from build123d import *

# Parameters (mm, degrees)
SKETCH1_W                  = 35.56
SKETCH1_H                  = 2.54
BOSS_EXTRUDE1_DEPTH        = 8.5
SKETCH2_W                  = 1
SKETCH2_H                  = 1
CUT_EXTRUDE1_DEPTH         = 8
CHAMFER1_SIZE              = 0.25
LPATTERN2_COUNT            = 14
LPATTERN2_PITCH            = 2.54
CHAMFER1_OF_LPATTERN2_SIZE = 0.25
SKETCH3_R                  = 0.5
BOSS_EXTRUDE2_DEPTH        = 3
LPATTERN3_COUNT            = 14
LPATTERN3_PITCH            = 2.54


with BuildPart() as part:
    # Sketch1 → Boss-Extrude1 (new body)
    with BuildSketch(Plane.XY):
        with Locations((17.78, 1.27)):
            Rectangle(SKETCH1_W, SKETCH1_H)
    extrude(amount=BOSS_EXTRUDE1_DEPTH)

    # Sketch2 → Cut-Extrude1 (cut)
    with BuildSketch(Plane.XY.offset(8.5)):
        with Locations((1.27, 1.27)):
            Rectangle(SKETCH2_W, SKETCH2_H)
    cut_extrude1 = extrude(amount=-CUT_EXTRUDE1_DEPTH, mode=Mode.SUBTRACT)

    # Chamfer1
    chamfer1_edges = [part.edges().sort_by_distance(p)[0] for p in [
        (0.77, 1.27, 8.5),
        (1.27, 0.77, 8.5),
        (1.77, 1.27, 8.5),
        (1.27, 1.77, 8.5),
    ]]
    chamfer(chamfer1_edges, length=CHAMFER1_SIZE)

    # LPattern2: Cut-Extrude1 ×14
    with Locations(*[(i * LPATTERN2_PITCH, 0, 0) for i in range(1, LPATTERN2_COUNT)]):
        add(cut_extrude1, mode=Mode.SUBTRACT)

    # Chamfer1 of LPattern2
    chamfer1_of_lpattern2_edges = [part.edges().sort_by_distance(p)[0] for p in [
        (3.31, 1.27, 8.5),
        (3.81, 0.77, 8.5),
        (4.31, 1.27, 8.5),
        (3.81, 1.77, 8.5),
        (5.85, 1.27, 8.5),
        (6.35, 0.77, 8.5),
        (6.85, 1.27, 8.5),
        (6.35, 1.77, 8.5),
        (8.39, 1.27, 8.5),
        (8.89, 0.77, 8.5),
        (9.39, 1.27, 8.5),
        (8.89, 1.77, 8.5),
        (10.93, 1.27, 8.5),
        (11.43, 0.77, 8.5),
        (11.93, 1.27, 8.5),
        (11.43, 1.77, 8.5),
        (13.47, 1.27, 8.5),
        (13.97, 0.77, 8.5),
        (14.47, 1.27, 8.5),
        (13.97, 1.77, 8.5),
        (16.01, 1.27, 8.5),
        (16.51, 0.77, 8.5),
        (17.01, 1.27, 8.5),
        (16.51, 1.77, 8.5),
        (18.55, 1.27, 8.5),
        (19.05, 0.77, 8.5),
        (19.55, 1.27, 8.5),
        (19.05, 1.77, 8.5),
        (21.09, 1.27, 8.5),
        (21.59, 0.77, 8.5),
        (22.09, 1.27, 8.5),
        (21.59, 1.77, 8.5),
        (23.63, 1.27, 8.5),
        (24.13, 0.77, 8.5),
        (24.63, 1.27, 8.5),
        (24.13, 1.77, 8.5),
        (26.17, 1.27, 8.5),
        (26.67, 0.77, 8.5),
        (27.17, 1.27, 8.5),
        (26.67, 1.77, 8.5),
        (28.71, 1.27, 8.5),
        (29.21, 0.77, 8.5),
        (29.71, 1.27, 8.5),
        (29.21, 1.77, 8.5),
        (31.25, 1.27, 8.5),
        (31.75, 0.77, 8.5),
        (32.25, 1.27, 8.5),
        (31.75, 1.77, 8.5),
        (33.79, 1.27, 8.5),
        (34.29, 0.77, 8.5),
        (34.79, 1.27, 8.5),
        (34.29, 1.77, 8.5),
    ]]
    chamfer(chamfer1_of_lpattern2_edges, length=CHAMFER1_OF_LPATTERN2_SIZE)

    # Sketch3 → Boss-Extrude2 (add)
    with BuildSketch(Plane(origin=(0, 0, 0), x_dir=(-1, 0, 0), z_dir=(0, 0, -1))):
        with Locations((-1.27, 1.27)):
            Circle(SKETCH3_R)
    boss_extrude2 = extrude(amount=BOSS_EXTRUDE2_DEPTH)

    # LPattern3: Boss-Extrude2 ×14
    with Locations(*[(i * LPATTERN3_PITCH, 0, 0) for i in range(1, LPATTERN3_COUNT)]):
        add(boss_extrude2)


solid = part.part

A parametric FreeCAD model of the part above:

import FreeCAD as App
import Part
import Sketcher


def edges_at(feature, points):
    """Names of the edges that pass closest to the given points."""
    edges = feature.Shape.Edges
    near = lambda p: min(range(len(edges)), key=lambda i: edges[i].distToShape(Part.Vertex(*p))[0])
    return sorted({f"Edge{near(p) + 1}" for p in points})

doc = App.newDocument("Part")
body = doc.addObject("PartDesign::Body", "Body")

# Sketch on XY plane
sketch1 = doc.addObject("Sketcher::SketchObject", "Sketch")
body.addObject(sketch1)
sketch1.AttachmentSupport = (doc.XY_Plane, [""])
sketch1.MapMode = "FlatFace"
sketch1.addGeometry([
    Part.LineSegment(App.Vector(0, 2.5, 0), App.Vector(0, 0, 0)),
    Part.LineSegment(App.Vector(0, 0, 0), App.Vector(35.6, 0, 0)),
    Part.LineSegment(App.Vector(35.6, 0, 0), App.Vector(35.6, 2.5, 0)),
    Part.LineSegment(App.Vector(35.6, 2.5, 0), App.Vector(0, 2.5, 0)),
], False)
sketch1.addConstraint([
    Sketcher.Constraint("Coincident", 0, 2, 1, 1),
    Sketcher.Constraint("Coincident", 1, 2, 2, 1),
    Sketcher.Constraint("Coincident", 2, 2, 3, 1),
    Sketcher.Constraint("Coincident", 3, 2, 0, 1),
    Sketcher.Constraint("Vertical", 0),
    Sketcher.Constraint("Horizontal", 1),
    Sketcher.Constraint("Vertical", 2),
    Sketcher.Constraint("Horizontal", 3),
    Sketcher.Constraint("Coincident", 0, 2, -1, 1),
    Sketcher.Constraint("DistanceX", 1, 1, 1, 2, 35.56),
    Sketcher.Constraint("DistanceY", 0, 2, 0, 1, 2.54),
])
pad1 = doc.addObject("PartDesign::Pad", "Pad")
body.addObject(pad1)
pad1.Profile = sketch1
pad1.Length = 8.5

# Sketch on XY plane
sketch2 = doc.addObject("Sketcher::SketchObject", "Sketch001")
body.addObject(sketch2)
sketch2.AttachmentSupport = (doc.XY_Plane, [""])
sketch2.MapMode = "FlatFace"
sketch2.AttachmentOffset = App.Placement(App.Vector(0, 0, 8.5), App.Rotation())
sketch2.addGeometry([
    Part.LineSegment(App.Vector(0.8, 1.8, 0), App.Vector(0.8, 0.8, 0)),
    Part.LineSegment(App.Vector(0.8, 0.8, 0), App.Vector(1.8, 0.8, 0)),
    Part.LineSegment(App.Vector(1.8, 0.8, 0), App.Vector(1.8, 1.8, 0)),
    Part.LineSegment(App.Vector(1.8, 1.8, 0), App.Vector(0.8, 1.8, 0)),
], False)
sketch2.addConstraint([
    Sketcher.Constraint("Coincident", 0, 2, 1, 1),
    Sketcher.Constraint("Coincident", 1, 2, 2, 1),
    Sketcher.Constraint("Coincident", 2, 2, 3, 1),
    Sketcher.Constraint("Coincident", 3, 2, 0, 1),
    Sketcher.Constraint("Vertical", 0),
    Sketcher.Constraint("Horizontal", 1),
    Sketcher.Constraint("Vertical", 2),
    Sketcher.Constraint("Horizontal", 3),
    Sketcher.Constraint("Equal", 3, 0),
    Sketcher.Constraint("DistanceX", 1, 1, 1, 2, 1.0),
    Sketcher.Constraint("DistanceX", -1, 1, 0, 2, 0.77),
    Sketcher.Constraint("DistanceY", -1, 1, 0, 2, 0.77),
])
pocket1 = doc.addObject("PartDesign::Pocket", "Pocket")
body.addObject(pocket1)
pocket1.Profile = sketch2
pocket1.Length = 8
doc.recompute()

chamfer = doc.addObject("PartDesign::Chamfer", "Chamfer")
body.addObject(chamfer)
chamfer.Base = (pocket1, edges_at(pocket1, [
    (0.77, 1.27, 8.5),
    (1.27, 0.77, 8.5),
    (1.77, 1.27, 8.5),
    (1.27, 1.77, 8.5),
]))
chamfer.Size = 0.25
doc.recompute()

linearpattern = doc.addObject("PartDesign::LinearPattern", "LinearPattern")
body.addObject(linearpattern)
linearpattern.Originals = [pocket1]
linearpattern.Direction = (doc.X_Axis, [""])
linearpattern.Mode = "offset"
linearpattern.Offset = 2.54
linearpattern.Occurrences = 14
body.Tip = linearpattern
doc.recompute()

chamfer2 = doc.addObject("PartDesign::Chamfer", "Chamfer001")
body.addObject(chamfer2)
chamfer2.Base = (linearpattern, edges_at(linearpattern, [
    (3.31, 1.27, 8.5),
    (3.81, 0.77, 8.5),
    (4.31, 1.27, 8.5),
    (3.81, 1.77, 8.5),
    (5.85, 1.27, 8.5),
    (6.35, 0.77, 8.5),
    (6.85, 1.27, 8.5),
    (6.35, 1.77, 8.5),
    (8.39, 1.27, 8.5),
    (8.89, 0.77, 8.5),
    (9.39, 1.27, 8.5),
    (8.89, 1.77, 8.5),
    (10.93, 1.27, 8.5),
    (11.43, 0.77, 8.5),
    (11.93, 1.27, 8.5),
    (11.43, 1.77, 8.5),
    (13.47, 1.27, 8.5),
    (13.97, 0.77, 8.5),
    (14.47, 1.27, 8.5),
    (13.97, 1.77, 8.5),
    (16.01, 1.27, 8.5),
    (16.51, 0.77, 8.5),
    (17.01, 1.27, 8.5),
    (16.51, 1.77, 8.5),
    (18.55, 1.27, 8.5),
    (19.05, 0.77, 8.5),
    (19.55, 1.27, 8.5),
    (19.05, 1.77, 8.5),
    (21.09, 1.27, 8.5),
    (21.59, 0.77, 8.5),
    (22.09, 1.27, 8.5),
    (21.59, 1.77, 8.5),
    (23.63, 1.27, 8.5),
    (24.13, 0.77, 8.5),
    (24.63, 1.27, 8.5),
    (24.13, 1.77, 8.5),
    (26.17, 1.27, 8.5),
    (26.67, 0.77, 8.5),
    (27.17, 1.27, 8.5),
    (26.67, 1.77, 8.5),
    (28.71, 1.27, 8.5),
    (29.21, 0.77, 8.5),
    (29.71, 1.27, 8.5),
    (29.21, 1.77, 8.5),
    (31.25, 1.27, 8.5),
    (31.75, 0.77, 8.5),
    (32.25, 1.27, 8.5),
    (31.75, 1.77, 8.5),
    (33.79, 1.27, 8.5),
    (34.29, 0.77, 8.5),
    (34.79, 1.27, 8.5),
    (34.29, 1.77, 8.5),
]))
chamfer2.Size = 0.25

# Sketch on XY plane
sketch3 = doc.addObject("Sketcher::SketchObject", "Sketch002")
body.addObject(sketch3)
sketch3.AttachmentSupport = (doc.XY_Plane, [""])
sketch3.MapMode = "FlatFace"
sketch3.addGeometry(Part.Circle(App.Vector(1.3, 1.3, 0), App.Vector(0, 0, 1), 0.5), False)
sketch3.addConstraint([
    Sketcher.Constraint("Diameter", 0, 1.0),
    Sketcher.Constraint("DistanceX", -1, 1, 0, 3, 1.27),
    Sketcher.Constraint("DistanceY", -1, 1, 0, 3, 1.27),
])
pad2 = doc.addObject("PartDesign::Pad", "Pad001")
body.addObject(pad2)
pad2.Profile = sketch3
pad2.Length = 3
pad2.Reversed = True
doc.recompute()

linearpattern2 = doc.addObject("PartDesign::LinearPattern", "LinearPattern001")
body.addObject(linearpattern2)
linearpattern2.Originals = [pad2]
linearpattern2.Direction = (doc.X_Axis, [""])
linearpattern2.Mode = "offset"
linearpattern2.Offset = 2.54
linearpattern2.Occurrences = 14
body.Tip = linearpattern2

doc.recompute()
